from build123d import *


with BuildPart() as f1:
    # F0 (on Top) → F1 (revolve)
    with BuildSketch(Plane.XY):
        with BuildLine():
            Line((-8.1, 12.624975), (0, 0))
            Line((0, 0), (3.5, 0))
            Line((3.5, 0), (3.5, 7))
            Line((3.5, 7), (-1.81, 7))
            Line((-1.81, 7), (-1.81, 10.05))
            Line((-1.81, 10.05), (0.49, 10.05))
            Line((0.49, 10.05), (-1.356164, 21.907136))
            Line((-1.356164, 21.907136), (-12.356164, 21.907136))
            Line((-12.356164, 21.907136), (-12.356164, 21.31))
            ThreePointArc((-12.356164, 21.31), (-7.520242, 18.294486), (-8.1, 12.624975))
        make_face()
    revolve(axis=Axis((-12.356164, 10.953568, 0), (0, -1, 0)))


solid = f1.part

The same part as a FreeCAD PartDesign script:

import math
import FreeCAD as App
import Part
import Sketcher

doc = App.newDocument("Part")
body = doc.addObject("PartDesign::Body", "Body")

sketch1 = body.newObject("Sketcher::SketchObject", "Sketch")
sketch1.AttachmentSupport = (doc.getObject("XY_Plane"), [""])
sketch1.MapMode = "FlatFace"
sketch1.addGeometry([
    Part.LineSegment(App.Vector(-8.1, 12.6, 0), App.Vector(0, 0, 0)),
    Part.LineSegment(App.Vector(0, 0, 0), App.Vector(3.5, 0, 0)),
    Part.LineSegment(App.Vector(3.5, 0, 0), App.Vector(3.5, 7, 0)),
    Part.LineSegment(App.Vector(3.5, 7, 0), App.Vector(-1.8, 7, 0)),
    Part.LineSegment(App.Vector(-1.8, 7, 0), App.Vector(-1.8, 10.1, 0)),
    Part.LineSegment(App.Vector(-1.8, 10.1, 0), App.Vector(0.5, 10.1, 0)),
    Part.LineSegment(App.Vector(0.5, 10.1, 0), App.Vector(-1.4, 21.9, 0)),
    Part.LineSegment(App.Vector(-1.4, 21.9, 0), App.Vector(-12.4, 21.9, 0)),
    Part.LineSegment(App.Vector(-12.4, 21.9, 0), App.Vector(-12.4, 21.3, 0)),
    Part.ArcOfCircle(Part.Circle(App.Vector(-12.4, 15.9, 0), App.Vector(0, 0, 1), 5.4), math.radians(-38), math.radians(90)),
], False)
sketch1.addGeometry(Part.LineSegment(App.Vector(-12.4, 21.9, 0), App.Vector(-12.4, 0, 0)), True)
sketch1.addConstraint([
    Sketcher.Constraint("Coincident", 0, 2, 1, 1),
    Sketcher.Constraint("Coincident", 1, 2, 2, 1),
    Sketcher.Constraint("Coincident", 2, 2, 3, 1),
    Sketcher.Constraint("Coincident", 3, 2, 4, 1),
    Sketcher.Constraint("Coincident", 4, 2, 5, 1),
    Sketcher.Constraint("Coincident", 5, 2, 6, 1),
    Sketcher.Constraint("Coincident", 6, 2, 7, 1),
    Sketcher.Constraint("Coincident", 7, 2, 8, 1),
    Sketcher.Constraint("Coincident", 8, 2, 9, 2),
    Sketcher.Constraint("Coincident", 9, 1, 0, 1),
    Sketcher.Constraint("Horizontal", 1),
    Sketcher.Constraint("Vertical", 2),
    Sketcher.Constraint("Horizontal", 3),
    Sketcher.Constraint("Vertical", 4),
    Sketcher.Constraint("Horizontal", 5),
    Sketcher.Constraint("Horizontal", 7),
    Sketcher.Constraint("Vertical", 8),
    Sketcher.Constraint("Vertical", 10),
    Sketcher.Constraint("Coincident", 0, 2, -1, 1),
    Sketcher.Constraint("Coincident", 10, 1, 7, 2),
    Sketcher.Constraint("PointOnObject", 10, 2, -1),
    Sketcher.Constraint("Vertical", 9, 3, 7, 2),
    Sketcher.Constraint("DistanceX", 7, 2, 7, 1, 11.0),
    Sketcher.Constraint("DistanceY", 2, 1, 2, 2, 7.0),
    Sketcher.Constraint("Distance", 0, 15.0),
    Sketcher.Constraint("Distance", 6, 12.0),
    Sketcher.Constraint("DistanceX", 1, 1, 1, 2, 3.5),
    Sketcher.Constraint("DistanceX", 5, 1, 5, 2, 2.3),
    Sketcher.Constraint("DistanceX", 3, 2, 3, 1, 5.31),
    Sketcher.Constraint("DistanceY", 4, 1, 4, 2, 3.05),
    Sketcher.Constraint("DistanceX", 9, 1, -1, 1, 8.1),
    Sketcher.Constraint("DistanceY", -1, 1, 8, 2, 21.31),
    Sketcher.Constraint("Radius", 9, 5.385396),
])
revolution = body.newObject("PartDesign::Revolution", "Revolution")
revolution.Profile = sketch1
revolution.ReferenceAxis = (sketch1, ["Axis0"])
revolution.Angle = 360

doc.recompute()
